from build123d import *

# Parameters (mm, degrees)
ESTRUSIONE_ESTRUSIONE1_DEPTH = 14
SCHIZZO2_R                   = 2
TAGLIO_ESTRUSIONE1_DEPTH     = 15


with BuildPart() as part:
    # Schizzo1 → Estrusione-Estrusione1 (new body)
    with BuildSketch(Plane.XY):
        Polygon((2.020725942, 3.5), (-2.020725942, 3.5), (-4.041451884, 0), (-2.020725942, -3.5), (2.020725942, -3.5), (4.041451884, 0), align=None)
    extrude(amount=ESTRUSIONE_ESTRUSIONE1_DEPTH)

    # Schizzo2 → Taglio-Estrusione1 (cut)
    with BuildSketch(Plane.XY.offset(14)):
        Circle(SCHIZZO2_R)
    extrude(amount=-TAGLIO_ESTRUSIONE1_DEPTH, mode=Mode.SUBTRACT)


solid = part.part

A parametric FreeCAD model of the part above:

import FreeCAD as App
import Part
import Sketcher
from FreeCAD import Vector
Q = App.Units.Quantity


def add_polygon(sketch, points):
    """Adds a closed chain of lines whose ends are joined by coincident constraints."""
    first, n = sketch.GeometryCount, len(points)
    for a, b in zip(points, points[1:] + points[:1]):
        sketch.addGeometry(Part.LineSegment(App.Vector(*a, 0), App.Vector(*b, 0)), False)
    for i in range(n):
        sketch.addConstraint(Sketcher.Constraint("Coincident", first + i, 2, first + (i + 1) % n, 1))

doc = App.newDocument("Part")
params = doc.addObject("Spreadsheet::Sheet", "Params")
for row, (alias, value) in enumerate([
    ("pad1_length", "14 mm"),
    ("sketch2_diameter", "4 mm"),
    ("pocket1_length", "15 mm"),
], start=1):
    params.set(f"A{row}", alias)
    params.set(f"B{row}", "=" + value)
    params.setAlias(f"B{row}", alias)

body = doc.addObject("PartDesign::Body", "Body")

# Sketch on XY plane
sketch1 = doc.addObject("Sketcher::SketchObject", "Sketch")
body.addObject(sketch1)
sketch1.AttachmentSupport = (doc.XY_Plane, [""])
sketch1.MapMode = "FlatFace"
add_polygon(sketch1, [(2, 3.5), (-2, 3.5), (-4, 0), (-2, -3.5), (2, -3.5), (4, 0)])  # lines 0-5
sketch1.addConstraint([
    Sketcher.Constraint("Horizontal", 0),
    Sketcher.Constraint("Horizontal", 3),
    Sketcher.Constraint("Symmetric", 0, 2, 3, 2, -1, 1),
    Sketcher.Constraint("Symmetric", 1, 2, 4, 2, -1, 1),
    Sketcher.Constraint("PointOnObject", 1, 2, -1),
    Sketcher.Constraint("Parallel", 2, 5),
    Sketcher.Constraint("Vertical", 0, 2, 2, 2),
    Sketcher.Constraint("Angle", 1, Q("-120 deg")),
    Sketcher.Constraint("DistanceY", 2, 2, 0, 2, Q("7 mm")),
    Sketcher.Constraint("DistanceX", 0, 2, 0, 1, Q("4.041452 mm")),
])
pad1 = doc.addObject("PartDesign::Pad", "Pad")
body.addObject(pad1)
pad1.Profile = sketch1
pad1.setExpression("Length", "Params.pad1_length")

# Sketch on XY plane
sketch2 = doc.addObject("Sketcher::SketchObject", "Sketch001")
body.addObject(sketch2)
sketch2.AttachmentSupport = (doc.XY_Plane, [""])
sketch2.MapMode = "FlatFace"
sketch2.AttachmentOffset = App.Placement(Vector(0, 0, 14), App.Rotation())
sketch2.addGeometry(Part.Circle(Vector(0, 0, 0), Vector(0, 0, 1), 2), False)
sketch2.addConstraint([
    Sketcher.Constraint("Coincident", 0, 3, -1, 1),
    Sketcher.Constraint("Diameter", 0, Q("4 mm")),
])
sketch2.setExpression("Constraints[1]", "Params.sketch2_diameter")
pocket1 = doc.addObject("PartDesign::Pocket", "Pocket")
body.addObject(pocket1)
pocket1.Profile = sketch2
pocket1.setExpression("Length", "Params.pocket1_length")

doc.recompute()
